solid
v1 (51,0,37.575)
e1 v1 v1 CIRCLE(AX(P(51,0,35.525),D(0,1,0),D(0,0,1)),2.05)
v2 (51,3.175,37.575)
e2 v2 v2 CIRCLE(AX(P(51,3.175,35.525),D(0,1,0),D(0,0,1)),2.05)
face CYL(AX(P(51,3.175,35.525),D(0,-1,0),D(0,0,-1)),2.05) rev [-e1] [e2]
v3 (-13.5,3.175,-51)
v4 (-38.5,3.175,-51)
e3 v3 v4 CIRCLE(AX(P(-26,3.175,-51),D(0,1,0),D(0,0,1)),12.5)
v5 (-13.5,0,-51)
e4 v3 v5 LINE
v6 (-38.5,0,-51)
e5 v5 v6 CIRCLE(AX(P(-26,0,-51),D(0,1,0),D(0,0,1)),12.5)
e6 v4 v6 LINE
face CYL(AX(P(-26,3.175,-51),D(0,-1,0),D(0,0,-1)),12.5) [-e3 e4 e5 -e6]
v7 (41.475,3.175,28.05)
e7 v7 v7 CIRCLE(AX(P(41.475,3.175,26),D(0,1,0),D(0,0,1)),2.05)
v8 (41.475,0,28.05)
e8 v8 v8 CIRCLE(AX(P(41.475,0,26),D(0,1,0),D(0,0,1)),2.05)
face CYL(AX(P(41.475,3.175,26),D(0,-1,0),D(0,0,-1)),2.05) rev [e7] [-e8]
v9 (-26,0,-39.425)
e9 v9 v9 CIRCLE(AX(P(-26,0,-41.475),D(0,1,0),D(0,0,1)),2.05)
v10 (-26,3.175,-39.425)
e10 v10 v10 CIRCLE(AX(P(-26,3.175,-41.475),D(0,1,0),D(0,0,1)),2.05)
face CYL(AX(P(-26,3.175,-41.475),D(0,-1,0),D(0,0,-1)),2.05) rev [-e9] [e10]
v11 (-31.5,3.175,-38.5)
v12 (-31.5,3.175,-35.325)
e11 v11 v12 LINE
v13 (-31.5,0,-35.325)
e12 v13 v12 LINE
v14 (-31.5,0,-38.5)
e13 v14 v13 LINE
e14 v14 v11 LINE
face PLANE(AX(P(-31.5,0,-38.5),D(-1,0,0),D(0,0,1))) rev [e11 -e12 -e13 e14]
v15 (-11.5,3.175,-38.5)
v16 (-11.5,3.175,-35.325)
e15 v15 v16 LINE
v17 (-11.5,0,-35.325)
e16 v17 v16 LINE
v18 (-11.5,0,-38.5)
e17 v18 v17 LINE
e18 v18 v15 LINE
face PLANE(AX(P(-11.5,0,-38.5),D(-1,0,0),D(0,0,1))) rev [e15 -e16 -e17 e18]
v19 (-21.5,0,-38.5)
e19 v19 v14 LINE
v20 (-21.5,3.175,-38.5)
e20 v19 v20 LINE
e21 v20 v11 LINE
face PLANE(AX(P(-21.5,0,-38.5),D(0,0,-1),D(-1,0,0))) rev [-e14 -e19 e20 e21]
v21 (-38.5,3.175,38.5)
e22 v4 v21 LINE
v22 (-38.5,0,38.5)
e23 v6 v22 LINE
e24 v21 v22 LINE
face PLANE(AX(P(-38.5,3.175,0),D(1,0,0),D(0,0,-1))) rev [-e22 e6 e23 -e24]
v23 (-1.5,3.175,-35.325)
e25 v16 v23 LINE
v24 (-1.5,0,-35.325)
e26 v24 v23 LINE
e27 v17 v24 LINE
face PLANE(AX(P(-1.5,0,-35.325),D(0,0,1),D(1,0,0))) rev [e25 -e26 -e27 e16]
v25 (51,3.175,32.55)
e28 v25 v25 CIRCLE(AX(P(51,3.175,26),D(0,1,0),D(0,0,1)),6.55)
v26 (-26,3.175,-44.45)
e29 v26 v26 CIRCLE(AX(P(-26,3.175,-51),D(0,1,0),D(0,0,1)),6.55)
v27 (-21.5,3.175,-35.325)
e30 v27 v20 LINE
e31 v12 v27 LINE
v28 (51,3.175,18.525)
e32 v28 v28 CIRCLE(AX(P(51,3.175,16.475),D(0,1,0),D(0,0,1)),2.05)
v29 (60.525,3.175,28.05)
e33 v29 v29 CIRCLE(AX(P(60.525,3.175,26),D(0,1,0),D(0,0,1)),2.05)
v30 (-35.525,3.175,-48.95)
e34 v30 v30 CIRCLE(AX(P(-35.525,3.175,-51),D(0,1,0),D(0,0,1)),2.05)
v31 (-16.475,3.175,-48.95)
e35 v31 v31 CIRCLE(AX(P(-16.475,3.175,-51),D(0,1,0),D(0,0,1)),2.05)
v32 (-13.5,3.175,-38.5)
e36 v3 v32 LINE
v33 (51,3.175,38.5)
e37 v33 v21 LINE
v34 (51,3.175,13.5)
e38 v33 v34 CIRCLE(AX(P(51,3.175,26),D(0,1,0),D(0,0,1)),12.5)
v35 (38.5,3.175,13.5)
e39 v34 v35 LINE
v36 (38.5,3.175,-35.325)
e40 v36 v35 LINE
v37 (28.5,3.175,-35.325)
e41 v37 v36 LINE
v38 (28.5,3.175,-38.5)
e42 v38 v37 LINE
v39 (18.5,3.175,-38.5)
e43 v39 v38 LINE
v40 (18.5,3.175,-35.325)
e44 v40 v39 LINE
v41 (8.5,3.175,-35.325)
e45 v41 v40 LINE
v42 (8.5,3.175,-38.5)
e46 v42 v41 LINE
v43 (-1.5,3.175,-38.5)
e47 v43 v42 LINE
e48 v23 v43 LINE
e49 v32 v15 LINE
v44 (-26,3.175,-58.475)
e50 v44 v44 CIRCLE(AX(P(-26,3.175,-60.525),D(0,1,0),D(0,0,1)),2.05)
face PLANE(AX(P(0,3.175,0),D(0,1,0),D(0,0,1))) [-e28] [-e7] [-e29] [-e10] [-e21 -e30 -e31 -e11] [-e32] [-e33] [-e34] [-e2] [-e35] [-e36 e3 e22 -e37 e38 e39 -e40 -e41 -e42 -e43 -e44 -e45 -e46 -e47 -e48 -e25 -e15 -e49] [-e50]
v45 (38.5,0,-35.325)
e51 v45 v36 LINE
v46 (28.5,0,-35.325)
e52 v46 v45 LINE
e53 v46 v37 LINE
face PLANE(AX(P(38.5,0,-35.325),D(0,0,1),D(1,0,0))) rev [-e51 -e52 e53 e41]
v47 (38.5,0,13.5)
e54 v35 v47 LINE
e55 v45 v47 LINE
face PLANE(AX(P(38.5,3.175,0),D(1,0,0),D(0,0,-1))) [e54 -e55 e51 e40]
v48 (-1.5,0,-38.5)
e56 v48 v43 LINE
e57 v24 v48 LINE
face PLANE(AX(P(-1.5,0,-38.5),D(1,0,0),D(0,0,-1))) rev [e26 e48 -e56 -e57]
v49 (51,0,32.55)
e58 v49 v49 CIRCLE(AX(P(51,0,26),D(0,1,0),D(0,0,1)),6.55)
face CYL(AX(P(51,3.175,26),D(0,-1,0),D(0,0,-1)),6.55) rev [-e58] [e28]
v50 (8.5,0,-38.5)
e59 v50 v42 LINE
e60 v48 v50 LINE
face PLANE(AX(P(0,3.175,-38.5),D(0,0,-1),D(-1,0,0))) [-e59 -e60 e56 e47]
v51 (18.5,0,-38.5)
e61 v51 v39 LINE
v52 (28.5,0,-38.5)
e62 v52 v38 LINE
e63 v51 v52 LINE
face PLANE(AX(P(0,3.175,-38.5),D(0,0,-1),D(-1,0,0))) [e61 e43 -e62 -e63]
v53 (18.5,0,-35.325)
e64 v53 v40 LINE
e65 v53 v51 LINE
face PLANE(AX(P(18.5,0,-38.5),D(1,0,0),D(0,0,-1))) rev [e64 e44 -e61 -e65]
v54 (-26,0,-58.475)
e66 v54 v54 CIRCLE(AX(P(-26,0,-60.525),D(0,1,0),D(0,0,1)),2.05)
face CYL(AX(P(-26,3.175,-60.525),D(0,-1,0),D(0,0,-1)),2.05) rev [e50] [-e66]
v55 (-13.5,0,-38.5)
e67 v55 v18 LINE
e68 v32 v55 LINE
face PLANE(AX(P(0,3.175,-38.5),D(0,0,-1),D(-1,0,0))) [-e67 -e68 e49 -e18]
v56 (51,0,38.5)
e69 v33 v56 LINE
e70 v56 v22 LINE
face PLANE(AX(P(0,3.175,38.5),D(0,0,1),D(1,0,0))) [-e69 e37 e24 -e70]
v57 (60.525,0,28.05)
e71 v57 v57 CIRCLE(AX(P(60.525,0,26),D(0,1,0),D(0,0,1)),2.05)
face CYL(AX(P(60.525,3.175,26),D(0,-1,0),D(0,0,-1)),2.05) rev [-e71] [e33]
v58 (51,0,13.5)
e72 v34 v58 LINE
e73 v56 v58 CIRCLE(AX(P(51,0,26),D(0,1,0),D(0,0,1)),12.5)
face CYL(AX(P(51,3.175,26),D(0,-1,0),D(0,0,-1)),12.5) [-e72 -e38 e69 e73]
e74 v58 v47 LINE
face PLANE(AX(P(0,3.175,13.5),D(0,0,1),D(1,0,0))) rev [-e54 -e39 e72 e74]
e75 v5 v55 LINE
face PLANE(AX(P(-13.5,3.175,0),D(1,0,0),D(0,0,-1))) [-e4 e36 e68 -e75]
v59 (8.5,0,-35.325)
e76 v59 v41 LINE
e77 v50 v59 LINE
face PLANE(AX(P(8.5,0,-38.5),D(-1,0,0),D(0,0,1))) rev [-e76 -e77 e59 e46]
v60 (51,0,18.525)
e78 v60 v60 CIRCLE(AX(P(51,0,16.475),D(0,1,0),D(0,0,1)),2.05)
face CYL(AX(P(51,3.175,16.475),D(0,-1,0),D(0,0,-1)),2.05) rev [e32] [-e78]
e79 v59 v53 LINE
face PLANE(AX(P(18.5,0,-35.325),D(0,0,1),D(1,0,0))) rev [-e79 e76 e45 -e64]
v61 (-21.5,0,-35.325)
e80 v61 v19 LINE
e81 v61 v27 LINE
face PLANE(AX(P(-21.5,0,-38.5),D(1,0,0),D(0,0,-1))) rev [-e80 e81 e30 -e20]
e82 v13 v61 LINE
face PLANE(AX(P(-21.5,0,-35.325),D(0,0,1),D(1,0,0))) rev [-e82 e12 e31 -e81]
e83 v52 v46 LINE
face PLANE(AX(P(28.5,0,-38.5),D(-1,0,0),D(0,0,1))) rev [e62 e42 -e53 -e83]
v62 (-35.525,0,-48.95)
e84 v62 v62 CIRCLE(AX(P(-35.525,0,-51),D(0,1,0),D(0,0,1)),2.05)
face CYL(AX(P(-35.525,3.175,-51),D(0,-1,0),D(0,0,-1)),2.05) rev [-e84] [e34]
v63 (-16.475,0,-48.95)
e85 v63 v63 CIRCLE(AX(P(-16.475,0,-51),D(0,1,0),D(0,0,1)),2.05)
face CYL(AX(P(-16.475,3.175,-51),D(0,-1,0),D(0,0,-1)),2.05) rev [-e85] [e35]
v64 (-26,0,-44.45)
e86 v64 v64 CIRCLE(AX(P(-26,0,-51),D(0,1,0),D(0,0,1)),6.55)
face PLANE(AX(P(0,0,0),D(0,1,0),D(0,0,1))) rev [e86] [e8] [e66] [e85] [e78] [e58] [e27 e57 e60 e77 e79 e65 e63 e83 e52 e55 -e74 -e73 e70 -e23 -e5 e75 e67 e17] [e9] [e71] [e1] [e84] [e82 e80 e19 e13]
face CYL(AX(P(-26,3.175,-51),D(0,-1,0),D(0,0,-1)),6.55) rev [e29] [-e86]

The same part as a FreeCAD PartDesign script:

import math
import FreeCAD as App
import Part
import Sketcher

V = App.Vector
Q = App.Units.Quantity

doc = App.newDocument("Part")
body = doc.addObject("PartDesign::Body", "Body")

# Sketch on XZ plane
sketch1 = body.newObject("Sketcher::SketchObject", "Sketch")
sketch1.AttachmentSupport = (doc.getObject("XZ_Plane"), [""])
sketch1.MapMode = "FlatFace"
sketch1.addGeometry([
    Part.ArcOfCircle(Part.Circle(V(-26, -51, 0), V(0, 0, 1), 12.5), math.radians(180), math.radians(360)),  # 0
    Part.LineSegment(V(-38.5, -51, 0), V(-38.5, 38.5, 0)),  # 1
    Part.LineSegment(V(-38.5, 38.5, 0), V(51, 38.5, 0)),  # 2
    Part.ArcOfCircle(Part.Circle(V(51, 26, 0), V(0, 0, 1), 12.5), math.radians(-90), math.radians(90)),  # 3
    Part.LineSegment(V(51, 13.5, 0), V(38.5, 13.5, 0)),  # 4
    Part.LineSegment(V(38.5, 13.5, 0), V(38.5, -38.5, 0)),  # 5
    Part.LineSegment(V(38.5, -38.5, 0), V(-13.5, -38.5, 0)),  # 6
    Part.LineSegment(V(-13.5, -38.5, 0), V(-13.5, -51, 0)),  # 7
    Part.Circle(V(41.5, 26, 0), V(0, 0, 1), 2),  # 8
    Part.Circle(V(51, 35.5, 0), V(0, 0, 1), 2),  # 9
    Part.Circle(V(51, 26, 0), V(0, 0, 1), 6.5),  # 10
    Part.Circle(V(60.5, 26, 0), V(0, 0, 1), 2),  # 11
    Part.Circle(V(51, 16.5, 0), V(0, 0, 1), 2),  # 12
    Part.Circle(V(-26, -41.5, 0), V(0, 0, 1), 2),  # 13
    Part.Circle(V(-35.5, -51, 0), V(0, 0, 1), 2),  # 14
    Part.Circle(V(-26, -51, 0), V(0, 0, 1), 6.5),  # 15
    Part.Circle(V(-26, -60.5, 0), V(0, 0, 1), 2),  # 16
    Part.Circle(V(-16.5, -51, 0), V(0, 0, 1), 2),  # 17
], False)
sketch1.addConstraint([
    Sketcher.Constraint("Tangent", 0, 1, 1, 1),
    Sketcher.Constraint("Coincident", 1, 2, 2, 1),
    Sketcher.Constraint("Tangent", 2, 2, 3, 2),
    Sketcher.Constraint("Tangent", 3, 1, 4, 1),
    Sketcher.Constraint("Coincident", 4, 2, 5, 1),
    Sketcher.Constraint("Coincident", 5, 2, 6, 1),
    Sketcher.Constraint("Coincident", 6, 2, 7, 1),
    Sketcher.Constraint("Tangent", 7, 2, 0, 2),
    Sketcher.Constraint("Vertical", 1),
    Sketcher.Constraint("Horizontal", 2),
    Sketcher.Constraint("Horizontal", 4),
    Sketcher.Constraint("Vertical", 5),
    Sketcher.Constraint("Horizontal", 6),
    Sketcher.Constraint("Vertical", 7),
    Sketcher.Constraint("Coincident", 10, 3, 3, 3),
    Sketcher.Constraint("Coincident", 15, 3, 0, 3),
    Sketcher.Constraint("Equal", 0, 3),
    Sketcher.Constraint("Equal", 8, 9),
    Sketcher.Constraint("Equal", 9, 11),
    Sketcher.Constraint("Equal", 11, 12),
    Sketcher.Constraint("Equal", 12, 13),
    Sketcher.Constraint("Equal", 13, 14),
    Sketcher.Constraint("Equal", 10, 15),
    Sketcher.Constraint("Equal", 14, 16),
    Sketcher.Constraint("Equal", 16, 17),
    Sketcher.Constraint("Symmetric", 1, 2, 5, 2, -1, 1),
    Sketcher.Constraint("Horizontal", 3, 3, 8, 3),
    Sketcher.Constraint("Horizontal", 10, 3, 11, 3),
    Sketcher.Constraint("Horizontal", 0, 3, 14, 3),
    Sketcher.Constraint("Horizontal", 15, 3, 17, 3),
    Sketcher.Constraint("Vertical", 3, 3, 9, 3),
    Sketcher.Constraint("Vertical", 10, 3, 12, 3),
    Sketcher.Constraint("Vertical", 0, 3, 13, 3),
    Sketcher.Constraint("Vertical", 15, 3, 16, 3),
    Sketcher.Constraint("Equal", 2, 1),
    Sketcher.Constraint("Equal", 6, 5),
    Sketcher.Constraint("Diameter", 8, Q("4.1 mm")),
    Sketcher.Constraint("Diameter", 10, Q("13.1 mm")),
    Sketcher.Constraint("Radius", 0, Q("12.5 mm")),
    Sketcher.Constraint("DistanceX", 6, 2, 6, 1, Q("52 mm")),
    Sketcher.Constraint("DistanceX", 2, 1, 2, 2, Q("89.5 mm")),
    Sketcher.Constraint("DistanceX", 14, 3, 8, 3, Q("77 mm")),
    Sketcher.Constraint("DistanceY", 16, 3, 12, 3, Q("77 mm")),
    Sketcher.Constraint("DistanceX", 8, 3, 11, 3, Q("19.05 mm")),
    Sketcher.Constraint("DistanceY", 12, 3, 9, 3, Q("19.05 mm")),
    Sketcher.Constraint("DistanceY", 13, 3, 12, 3, Q("57.95 mm")),
    Sketcher.Constraint("DistanceX", 14, 3, 17, 3, Q("19.05 mm")),
    Sketcher.Constraint("DistanceX", -1, 1, 8, 3, Q("41.475 mm")),
    Sketcher.Constraint("DistanceY", -1, 1, 9, 3, Q("35.525 mm")),
])
pad1 = body.newObject("PartDesign::Pad", "Pad")
pad1.Profile = sketch1
pad1.Length = 3.175
pad1.Reversed = True

# Sketch on XZ plane
sketch2 = body.newObject("Sketcher::SketchObject", "Sketch001")
sketch2.AttachmentSupport = (doc.getObject("XZ_Plane"), [""])
sketch2.MapMode = "FlatFace"
sketch2.AttachmentOffset = App.Placement(V(0, 0, -3.175), App.Rotation())
sketch2.addGeometry([
    Part.LineSegment(V(28.5, -38.5, 0), V(28.5, -35.3, 0)),  # 0
    Part.LineSegment(V(28.5, -35.3, 0), V(38.5, -35.3, 0)),  # 1
    Part.LineSegment(V(38.5, -35.3, 0), V(38.5, -38.5, 0)),  # 2
    Part.LineSegment(V(38.5, -38.5, 0), V(28.5, -38.5, 0)),  # 3
    Part.LineSegment(V(8.5, -38.5, 0), V(8.5, -35.3, 0)),  # 4
    Part.LineSegment(V(8.5, -35.3, 0), V(18.5, -35.3, 0)),  # 5
    Part.LineSegment(V(18.5, -35.3, 0), V(18.5, -38.5, 0)),  # 6
    Part.LineSegment(V(18.5, -38.5, 0), V(8.5, -38.5, 0)),  # 7
    Part.LineSegment(V(-11.5, -38.5, 0), V(-11.5, -35.3, 0)),  # 8
    Part.LineSegment(V(-11.5, -35.3, 0), V(-1.5, -35.3, 0)),  # 9
    Part.LineSegment(V(-1.5, -35.3, 0), V(-1.5, -38.5, 0)),  # 10
    Part.LineSegment(V(-1.5, -38.5, 0), V(-11.5, -38.5, 0)),  # 11
    Part.LineSegment(V(-31.5, -38.5, 0), V(-31.5, -35.3, 0)),  # 12
    Part.LineSegment(V(-31.5, -35.3, 0), V(-21.5, -35.3, 0)),  # 13
    Part.LineSegment(V(-21.5, -35.3, 0), V(-21.5, -38.5, 0)),  # 14
    Part.LineSegment(V(-21.5, -38.5, 0), V(-31.5, -38.5, 0)),  # 15
], False)
sketch2.addConstraint([
    Sketcher.Constraint("Coincident", 0, 2, 1, 1),
    Sketcher.Constraint("Coincident", 1, 2, 2, 1),
    Sketcher.Constraint("Coincident", 2, 2, 3, 1),
    Sketcher.Constraint("Coincident", 3, 2, 0, 1),
    Sketcher.Constraint("Coincident", 4, 2, 5, 1),
    Sketcher.Constraint("Coincident", 5, 2, 6, 1),
    Sketcher.Constraint("Coincident", 6, 2, 7, 1),
    Sketcher.Constraint("Coincident", 7, 2, 4, 1),
    Sketcher.Constraint("Coincident", 8, 2, 9, 1),
    Sketcher.Constraint("Coincident", 9, 2, 10, 1),
    Sketcher.Constraint("Coincident", 10, 2, 11, 1),
    Sketcher.Constraint("Coincident", 11, 2, 8, 1),
    Sketcher.Constraint("Coincident", 12, 2, 13, 1),
    Sketcher.Constraint("Coincident", 13, 2, 14, 1),
    Sketcher.Constraint("Coincident", 14, 2, 15, 1),
    Sketcher.Constraint("Coincident", 15, 2, 12, 1),
    Sketcher.Constraint("Vertical", 0),
    Sketcher.Constraint("Horizontal", 1),
    Sketcher.Constraint("Vertical", 2),
    Sketcher.Constraint("Horizontal", 3),
    Sketcher.Constraint("Vertical", 4),
    Sketcher.Constraint("Horizontal", 5),
    Sketcher.Constraint("Vertical", 6),
    Sketcher.Constraint("Horizontal", 7),
    Sketcher.Constraint("Vertical", 8),
    Sketcher.Constraint("Horizontal", 9),
    Sketcher.Constraint("Vertical", 10),
    Sketcher.Constraint("Horizontal", 11),
    Sketcher.Constraint("Vertical", 12),
    Sketcher.Constraint("Horizontal", 13),
    Sketcher.Constraint("Vertical", 14),
    Sketcher.Constraint("Horizontal", 15),
    Sketcher.Constraint("Horizontal", 1, 2, 4, 2),
    Sketcher.Constraint("Horizontal", 3, 2, 6, 2),
    Sketcher.Constraint("Horizontal", 5, 2, 8, 2),
    Sketcher.Constraint("Horizontal", 7, 2, 10, 2),
    Sketcher.Constraint("Horizontal", 9, 2, 12, 2),
    Sketcher.Constraint("Horizontal", 11, 2, 14, 2),
    Sketcher.Constraint("Equal", 3, 5),
    Sketcher.Constraint("Equal", 7, 9),
    Sketcher.Constraint("Equal", 11, 13),
    Sketcher.Constraint("DistanceX", 1, 1, 1, 2, Q("10 mm")),
    Sketcher.Constraint("DistanceX", 4, 2, 0, 2, Q("20 mm")),
    Sketcher.Constraint("DistanceX", 8, 2, 4, 2, Q("20 mm")),
    Sketcher.Constraint("DistanceX", 12, 2, 8, 2, Q("20 mm")),
    Sketcher.Constraint("DistanceX", -1, 1, 0, 2, Q("28.5 mm")),
    Sketcher.Constraint("DistanceY", 2, 2, -1, 1, Q("38.5 mm")),
    Sketcher.Constraint("DistanceY", 0, 1, 0, 2, Q("3.175 mm")),
])
pocket1 = body.newObject("PartDesign::Pocket", "Pocket")
pocket1.Profile = sketch2
pocket1.Length = 3.175
pocket1.Reversed = True

doc.recompute()
